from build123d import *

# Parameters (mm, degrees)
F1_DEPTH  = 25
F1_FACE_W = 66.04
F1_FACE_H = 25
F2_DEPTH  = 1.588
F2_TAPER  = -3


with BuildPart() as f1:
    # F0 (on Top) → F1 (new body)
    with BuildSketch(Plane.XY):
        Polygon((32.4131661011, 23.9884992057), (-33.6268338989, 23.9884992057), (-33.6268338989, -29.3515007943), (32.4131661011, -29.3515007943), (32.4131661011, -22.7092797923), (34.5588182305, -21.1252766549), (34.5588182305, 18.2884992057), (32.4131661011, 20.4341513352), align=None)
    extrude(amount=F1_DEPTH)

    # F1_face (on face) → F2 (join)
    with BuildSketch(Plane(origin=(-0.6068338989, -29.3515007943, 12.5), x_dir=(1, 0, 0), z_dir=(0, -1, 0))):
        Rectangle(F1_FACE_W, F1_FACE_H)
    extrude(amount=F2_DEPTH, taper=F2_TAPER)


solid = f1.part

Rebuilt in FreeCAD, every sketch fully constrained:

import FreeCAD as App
import Part
import Sketcher
Q = App.Units.Quantity

doc = App.newDocument("Part")
body = doc.addObject("PartDesign::Body", "Body")

sketch1 = body.newObject("Sketcher::SketchObject", "Sketch")
sketch1.AttachmentSupport = (doc.getObject("XY_Plane"), [""])
sketch1.MapMode = "FlatFace"
sketch1.addGeometry([
    Part.LineSegment(App.Vector(32.413166, 23.988499, 0), App.Vector(-33.626834, 23.988499, 0)),
    Part.LineSegment(App.Vector(-33.626834, 23.988499, 0), App.Vector(-33.626834, -29.351501, 0)),
    Part.LineSegment(App.Vector(-33.626834, -29.351501, 0), App.Vector(32.413166, -29.351501, 0)),
    Part.LineSegment(App.Vector(32.413166, -29.351501, 0), App.Vector(32.413166, -22.70928, 0)),
    Part.LineSegment(App.Vector(32.413166, -22.70928, 0), App.Vector(34.558818, -21.125277, 0)),
    Part.LineSegment(App.Vector(34.558818, -21.125277, 0), App.Vector(34.558818, 18.288499, 0)),
    Part.LineSegment(App.Vector(34.558818, 18.288499, 0), App.Vector(32.413166, 20.434151, 0)),
    Part.LineSegment(App.Vector(32.413166, 20.434151, 0), App.Vector(32.413166, 23.988499, 0)),
], False)
sketch1.addConstraint([
    Sketcher.Constraint("Coincident", 0, 2, 1, 1),
    Sketcher.Constraint("Coincident", 1, 2, 2, 1),
    Sketcher.Constraint("Coincident", 2, 2, 3, 1),
    Sketcher.Constraint("Coincident", 3, 2, 4, 1),
    Sketcher.Constraint("Coincident", 4, 2, 5, 1),
    Sketcher.Constraint("Coincident", 5, 2, 6, 1),
    Sketcher.Constraint("Coincident", 6, 2, 7, 1),
    Sketcher.Constraint("Coincident", 7, 2, 0, 1),
    Sketcher.Constraint("Horizontal", 0),
    Sketcher.Constraint("Vertical", 1),
    Sketcher.Constraint("Horizontal", 2),
    Sketcher.Constraint("Vertical", 3),
    Sketcher.Constraint("Vertical", 5),
    Sketcher.Constraint("Vertical", 7),
    Sketcher.Constraint("Vertical", 3, 2, 6, 2),
    Sketcher.Constraint("DistanceX", 0, 2, 0, 1, Q("2.6 in")),
    Sketcher.Constraint("DistanceY", 1, 2, 1, 1, Q("2.1 in")),
    Sketcher.Constraint("Angle", 6, Q("135 deg")),
    Sketcher.Constraint("Distance", 4, Q("0.105 in")),
    Sketcher.Constraint("DistanceY", 3, 1, 3, 2, Q("6.642221 mm")),
    Sketcher.Constraint("DistanceY", -1, 1, 0, 2, Q("23.988499 mm")),
    Sketcher.Constraint("DistanceY", -1, 1, 5, 2, Q("18.288499 mm")),
    Sketcher.Constraint("Distance", 6, Q("3.03441 mm")),
    Sketcher.Constraint("DistanceX", -1, 1, 4, 2, Q("34.558818 mm")),
])
pad1 = body.newObject("PartDesign::Pad", "Pad")
pad1.Profile = sketch1
pad1.Length = 25

sketch2 = body.newObject("Sketcher::SketchObject", "Sketch001")
sketch2.AttachmentSupport = (doc.getObject("XZ_Plane"), [""])
sketch2.MapMode = "FlatFace"
sketch2.AttachmentOffset = App.Placement(App.Vector(0, 0, 29.351501), App.Rotation())
sketch2.addGeometry([
    Part.LineSegment(App.Vector(-33.626834, 25, 0), App.Vector(-33.626834, 0, 0)),
    Part.LineSegment(App.Vector(-33.626834, 0, 0), App.Vector(32.413166, 0, 0)),
    Part.LineSegment(App.Vector(32.413166, 0, 0), App.Vector(32.413166, 25, 0)),
    Part.LineSegment(App.Vector(32.413166, 25, 0), App.Vector(-33.626834, 25, 0)),
], False)
sketch2.addConstraint([
    Sketcher.Constraint("Coincident", 0, 2, 1, 1),
    Sketcher.Constraint("Coincident", 1, 2, 2, 1),
    Sketcher.Constraint("Coincident", 2, 2, 3, 1),
    Sketcher.Constraint("Coincident", 3, 2, 0, 1),
    Sketcher.Constraint("Vertical", 0),
    Sketcher.Constraint("Horizontal", 1),
    Sketcher.Constraint("Vertical", 2),
    Sketcher.Constraint("Horizontal", 3),
    Sketcher.Constraint("PointOnObject", 0, 2, -1),
    Sketcher.Constraint("DistanceX", 1, 1, 1, 2, Q("2.6 in")),
    Sketcher.Constraint("DistanceY", 0, 2, 0, 1, Q("25 mm")),
    Sketcher.Constraint("DistanceX", 0, 2, -1, 1, Q("33.626834 mm")),
])
pad2 = body.newObject("PartDesign::Pad", "Pad001")
pad2.Profile = sketch2
pad2.Length = 1.588
pad2.TaperAngle = 3

doc.recompute()
